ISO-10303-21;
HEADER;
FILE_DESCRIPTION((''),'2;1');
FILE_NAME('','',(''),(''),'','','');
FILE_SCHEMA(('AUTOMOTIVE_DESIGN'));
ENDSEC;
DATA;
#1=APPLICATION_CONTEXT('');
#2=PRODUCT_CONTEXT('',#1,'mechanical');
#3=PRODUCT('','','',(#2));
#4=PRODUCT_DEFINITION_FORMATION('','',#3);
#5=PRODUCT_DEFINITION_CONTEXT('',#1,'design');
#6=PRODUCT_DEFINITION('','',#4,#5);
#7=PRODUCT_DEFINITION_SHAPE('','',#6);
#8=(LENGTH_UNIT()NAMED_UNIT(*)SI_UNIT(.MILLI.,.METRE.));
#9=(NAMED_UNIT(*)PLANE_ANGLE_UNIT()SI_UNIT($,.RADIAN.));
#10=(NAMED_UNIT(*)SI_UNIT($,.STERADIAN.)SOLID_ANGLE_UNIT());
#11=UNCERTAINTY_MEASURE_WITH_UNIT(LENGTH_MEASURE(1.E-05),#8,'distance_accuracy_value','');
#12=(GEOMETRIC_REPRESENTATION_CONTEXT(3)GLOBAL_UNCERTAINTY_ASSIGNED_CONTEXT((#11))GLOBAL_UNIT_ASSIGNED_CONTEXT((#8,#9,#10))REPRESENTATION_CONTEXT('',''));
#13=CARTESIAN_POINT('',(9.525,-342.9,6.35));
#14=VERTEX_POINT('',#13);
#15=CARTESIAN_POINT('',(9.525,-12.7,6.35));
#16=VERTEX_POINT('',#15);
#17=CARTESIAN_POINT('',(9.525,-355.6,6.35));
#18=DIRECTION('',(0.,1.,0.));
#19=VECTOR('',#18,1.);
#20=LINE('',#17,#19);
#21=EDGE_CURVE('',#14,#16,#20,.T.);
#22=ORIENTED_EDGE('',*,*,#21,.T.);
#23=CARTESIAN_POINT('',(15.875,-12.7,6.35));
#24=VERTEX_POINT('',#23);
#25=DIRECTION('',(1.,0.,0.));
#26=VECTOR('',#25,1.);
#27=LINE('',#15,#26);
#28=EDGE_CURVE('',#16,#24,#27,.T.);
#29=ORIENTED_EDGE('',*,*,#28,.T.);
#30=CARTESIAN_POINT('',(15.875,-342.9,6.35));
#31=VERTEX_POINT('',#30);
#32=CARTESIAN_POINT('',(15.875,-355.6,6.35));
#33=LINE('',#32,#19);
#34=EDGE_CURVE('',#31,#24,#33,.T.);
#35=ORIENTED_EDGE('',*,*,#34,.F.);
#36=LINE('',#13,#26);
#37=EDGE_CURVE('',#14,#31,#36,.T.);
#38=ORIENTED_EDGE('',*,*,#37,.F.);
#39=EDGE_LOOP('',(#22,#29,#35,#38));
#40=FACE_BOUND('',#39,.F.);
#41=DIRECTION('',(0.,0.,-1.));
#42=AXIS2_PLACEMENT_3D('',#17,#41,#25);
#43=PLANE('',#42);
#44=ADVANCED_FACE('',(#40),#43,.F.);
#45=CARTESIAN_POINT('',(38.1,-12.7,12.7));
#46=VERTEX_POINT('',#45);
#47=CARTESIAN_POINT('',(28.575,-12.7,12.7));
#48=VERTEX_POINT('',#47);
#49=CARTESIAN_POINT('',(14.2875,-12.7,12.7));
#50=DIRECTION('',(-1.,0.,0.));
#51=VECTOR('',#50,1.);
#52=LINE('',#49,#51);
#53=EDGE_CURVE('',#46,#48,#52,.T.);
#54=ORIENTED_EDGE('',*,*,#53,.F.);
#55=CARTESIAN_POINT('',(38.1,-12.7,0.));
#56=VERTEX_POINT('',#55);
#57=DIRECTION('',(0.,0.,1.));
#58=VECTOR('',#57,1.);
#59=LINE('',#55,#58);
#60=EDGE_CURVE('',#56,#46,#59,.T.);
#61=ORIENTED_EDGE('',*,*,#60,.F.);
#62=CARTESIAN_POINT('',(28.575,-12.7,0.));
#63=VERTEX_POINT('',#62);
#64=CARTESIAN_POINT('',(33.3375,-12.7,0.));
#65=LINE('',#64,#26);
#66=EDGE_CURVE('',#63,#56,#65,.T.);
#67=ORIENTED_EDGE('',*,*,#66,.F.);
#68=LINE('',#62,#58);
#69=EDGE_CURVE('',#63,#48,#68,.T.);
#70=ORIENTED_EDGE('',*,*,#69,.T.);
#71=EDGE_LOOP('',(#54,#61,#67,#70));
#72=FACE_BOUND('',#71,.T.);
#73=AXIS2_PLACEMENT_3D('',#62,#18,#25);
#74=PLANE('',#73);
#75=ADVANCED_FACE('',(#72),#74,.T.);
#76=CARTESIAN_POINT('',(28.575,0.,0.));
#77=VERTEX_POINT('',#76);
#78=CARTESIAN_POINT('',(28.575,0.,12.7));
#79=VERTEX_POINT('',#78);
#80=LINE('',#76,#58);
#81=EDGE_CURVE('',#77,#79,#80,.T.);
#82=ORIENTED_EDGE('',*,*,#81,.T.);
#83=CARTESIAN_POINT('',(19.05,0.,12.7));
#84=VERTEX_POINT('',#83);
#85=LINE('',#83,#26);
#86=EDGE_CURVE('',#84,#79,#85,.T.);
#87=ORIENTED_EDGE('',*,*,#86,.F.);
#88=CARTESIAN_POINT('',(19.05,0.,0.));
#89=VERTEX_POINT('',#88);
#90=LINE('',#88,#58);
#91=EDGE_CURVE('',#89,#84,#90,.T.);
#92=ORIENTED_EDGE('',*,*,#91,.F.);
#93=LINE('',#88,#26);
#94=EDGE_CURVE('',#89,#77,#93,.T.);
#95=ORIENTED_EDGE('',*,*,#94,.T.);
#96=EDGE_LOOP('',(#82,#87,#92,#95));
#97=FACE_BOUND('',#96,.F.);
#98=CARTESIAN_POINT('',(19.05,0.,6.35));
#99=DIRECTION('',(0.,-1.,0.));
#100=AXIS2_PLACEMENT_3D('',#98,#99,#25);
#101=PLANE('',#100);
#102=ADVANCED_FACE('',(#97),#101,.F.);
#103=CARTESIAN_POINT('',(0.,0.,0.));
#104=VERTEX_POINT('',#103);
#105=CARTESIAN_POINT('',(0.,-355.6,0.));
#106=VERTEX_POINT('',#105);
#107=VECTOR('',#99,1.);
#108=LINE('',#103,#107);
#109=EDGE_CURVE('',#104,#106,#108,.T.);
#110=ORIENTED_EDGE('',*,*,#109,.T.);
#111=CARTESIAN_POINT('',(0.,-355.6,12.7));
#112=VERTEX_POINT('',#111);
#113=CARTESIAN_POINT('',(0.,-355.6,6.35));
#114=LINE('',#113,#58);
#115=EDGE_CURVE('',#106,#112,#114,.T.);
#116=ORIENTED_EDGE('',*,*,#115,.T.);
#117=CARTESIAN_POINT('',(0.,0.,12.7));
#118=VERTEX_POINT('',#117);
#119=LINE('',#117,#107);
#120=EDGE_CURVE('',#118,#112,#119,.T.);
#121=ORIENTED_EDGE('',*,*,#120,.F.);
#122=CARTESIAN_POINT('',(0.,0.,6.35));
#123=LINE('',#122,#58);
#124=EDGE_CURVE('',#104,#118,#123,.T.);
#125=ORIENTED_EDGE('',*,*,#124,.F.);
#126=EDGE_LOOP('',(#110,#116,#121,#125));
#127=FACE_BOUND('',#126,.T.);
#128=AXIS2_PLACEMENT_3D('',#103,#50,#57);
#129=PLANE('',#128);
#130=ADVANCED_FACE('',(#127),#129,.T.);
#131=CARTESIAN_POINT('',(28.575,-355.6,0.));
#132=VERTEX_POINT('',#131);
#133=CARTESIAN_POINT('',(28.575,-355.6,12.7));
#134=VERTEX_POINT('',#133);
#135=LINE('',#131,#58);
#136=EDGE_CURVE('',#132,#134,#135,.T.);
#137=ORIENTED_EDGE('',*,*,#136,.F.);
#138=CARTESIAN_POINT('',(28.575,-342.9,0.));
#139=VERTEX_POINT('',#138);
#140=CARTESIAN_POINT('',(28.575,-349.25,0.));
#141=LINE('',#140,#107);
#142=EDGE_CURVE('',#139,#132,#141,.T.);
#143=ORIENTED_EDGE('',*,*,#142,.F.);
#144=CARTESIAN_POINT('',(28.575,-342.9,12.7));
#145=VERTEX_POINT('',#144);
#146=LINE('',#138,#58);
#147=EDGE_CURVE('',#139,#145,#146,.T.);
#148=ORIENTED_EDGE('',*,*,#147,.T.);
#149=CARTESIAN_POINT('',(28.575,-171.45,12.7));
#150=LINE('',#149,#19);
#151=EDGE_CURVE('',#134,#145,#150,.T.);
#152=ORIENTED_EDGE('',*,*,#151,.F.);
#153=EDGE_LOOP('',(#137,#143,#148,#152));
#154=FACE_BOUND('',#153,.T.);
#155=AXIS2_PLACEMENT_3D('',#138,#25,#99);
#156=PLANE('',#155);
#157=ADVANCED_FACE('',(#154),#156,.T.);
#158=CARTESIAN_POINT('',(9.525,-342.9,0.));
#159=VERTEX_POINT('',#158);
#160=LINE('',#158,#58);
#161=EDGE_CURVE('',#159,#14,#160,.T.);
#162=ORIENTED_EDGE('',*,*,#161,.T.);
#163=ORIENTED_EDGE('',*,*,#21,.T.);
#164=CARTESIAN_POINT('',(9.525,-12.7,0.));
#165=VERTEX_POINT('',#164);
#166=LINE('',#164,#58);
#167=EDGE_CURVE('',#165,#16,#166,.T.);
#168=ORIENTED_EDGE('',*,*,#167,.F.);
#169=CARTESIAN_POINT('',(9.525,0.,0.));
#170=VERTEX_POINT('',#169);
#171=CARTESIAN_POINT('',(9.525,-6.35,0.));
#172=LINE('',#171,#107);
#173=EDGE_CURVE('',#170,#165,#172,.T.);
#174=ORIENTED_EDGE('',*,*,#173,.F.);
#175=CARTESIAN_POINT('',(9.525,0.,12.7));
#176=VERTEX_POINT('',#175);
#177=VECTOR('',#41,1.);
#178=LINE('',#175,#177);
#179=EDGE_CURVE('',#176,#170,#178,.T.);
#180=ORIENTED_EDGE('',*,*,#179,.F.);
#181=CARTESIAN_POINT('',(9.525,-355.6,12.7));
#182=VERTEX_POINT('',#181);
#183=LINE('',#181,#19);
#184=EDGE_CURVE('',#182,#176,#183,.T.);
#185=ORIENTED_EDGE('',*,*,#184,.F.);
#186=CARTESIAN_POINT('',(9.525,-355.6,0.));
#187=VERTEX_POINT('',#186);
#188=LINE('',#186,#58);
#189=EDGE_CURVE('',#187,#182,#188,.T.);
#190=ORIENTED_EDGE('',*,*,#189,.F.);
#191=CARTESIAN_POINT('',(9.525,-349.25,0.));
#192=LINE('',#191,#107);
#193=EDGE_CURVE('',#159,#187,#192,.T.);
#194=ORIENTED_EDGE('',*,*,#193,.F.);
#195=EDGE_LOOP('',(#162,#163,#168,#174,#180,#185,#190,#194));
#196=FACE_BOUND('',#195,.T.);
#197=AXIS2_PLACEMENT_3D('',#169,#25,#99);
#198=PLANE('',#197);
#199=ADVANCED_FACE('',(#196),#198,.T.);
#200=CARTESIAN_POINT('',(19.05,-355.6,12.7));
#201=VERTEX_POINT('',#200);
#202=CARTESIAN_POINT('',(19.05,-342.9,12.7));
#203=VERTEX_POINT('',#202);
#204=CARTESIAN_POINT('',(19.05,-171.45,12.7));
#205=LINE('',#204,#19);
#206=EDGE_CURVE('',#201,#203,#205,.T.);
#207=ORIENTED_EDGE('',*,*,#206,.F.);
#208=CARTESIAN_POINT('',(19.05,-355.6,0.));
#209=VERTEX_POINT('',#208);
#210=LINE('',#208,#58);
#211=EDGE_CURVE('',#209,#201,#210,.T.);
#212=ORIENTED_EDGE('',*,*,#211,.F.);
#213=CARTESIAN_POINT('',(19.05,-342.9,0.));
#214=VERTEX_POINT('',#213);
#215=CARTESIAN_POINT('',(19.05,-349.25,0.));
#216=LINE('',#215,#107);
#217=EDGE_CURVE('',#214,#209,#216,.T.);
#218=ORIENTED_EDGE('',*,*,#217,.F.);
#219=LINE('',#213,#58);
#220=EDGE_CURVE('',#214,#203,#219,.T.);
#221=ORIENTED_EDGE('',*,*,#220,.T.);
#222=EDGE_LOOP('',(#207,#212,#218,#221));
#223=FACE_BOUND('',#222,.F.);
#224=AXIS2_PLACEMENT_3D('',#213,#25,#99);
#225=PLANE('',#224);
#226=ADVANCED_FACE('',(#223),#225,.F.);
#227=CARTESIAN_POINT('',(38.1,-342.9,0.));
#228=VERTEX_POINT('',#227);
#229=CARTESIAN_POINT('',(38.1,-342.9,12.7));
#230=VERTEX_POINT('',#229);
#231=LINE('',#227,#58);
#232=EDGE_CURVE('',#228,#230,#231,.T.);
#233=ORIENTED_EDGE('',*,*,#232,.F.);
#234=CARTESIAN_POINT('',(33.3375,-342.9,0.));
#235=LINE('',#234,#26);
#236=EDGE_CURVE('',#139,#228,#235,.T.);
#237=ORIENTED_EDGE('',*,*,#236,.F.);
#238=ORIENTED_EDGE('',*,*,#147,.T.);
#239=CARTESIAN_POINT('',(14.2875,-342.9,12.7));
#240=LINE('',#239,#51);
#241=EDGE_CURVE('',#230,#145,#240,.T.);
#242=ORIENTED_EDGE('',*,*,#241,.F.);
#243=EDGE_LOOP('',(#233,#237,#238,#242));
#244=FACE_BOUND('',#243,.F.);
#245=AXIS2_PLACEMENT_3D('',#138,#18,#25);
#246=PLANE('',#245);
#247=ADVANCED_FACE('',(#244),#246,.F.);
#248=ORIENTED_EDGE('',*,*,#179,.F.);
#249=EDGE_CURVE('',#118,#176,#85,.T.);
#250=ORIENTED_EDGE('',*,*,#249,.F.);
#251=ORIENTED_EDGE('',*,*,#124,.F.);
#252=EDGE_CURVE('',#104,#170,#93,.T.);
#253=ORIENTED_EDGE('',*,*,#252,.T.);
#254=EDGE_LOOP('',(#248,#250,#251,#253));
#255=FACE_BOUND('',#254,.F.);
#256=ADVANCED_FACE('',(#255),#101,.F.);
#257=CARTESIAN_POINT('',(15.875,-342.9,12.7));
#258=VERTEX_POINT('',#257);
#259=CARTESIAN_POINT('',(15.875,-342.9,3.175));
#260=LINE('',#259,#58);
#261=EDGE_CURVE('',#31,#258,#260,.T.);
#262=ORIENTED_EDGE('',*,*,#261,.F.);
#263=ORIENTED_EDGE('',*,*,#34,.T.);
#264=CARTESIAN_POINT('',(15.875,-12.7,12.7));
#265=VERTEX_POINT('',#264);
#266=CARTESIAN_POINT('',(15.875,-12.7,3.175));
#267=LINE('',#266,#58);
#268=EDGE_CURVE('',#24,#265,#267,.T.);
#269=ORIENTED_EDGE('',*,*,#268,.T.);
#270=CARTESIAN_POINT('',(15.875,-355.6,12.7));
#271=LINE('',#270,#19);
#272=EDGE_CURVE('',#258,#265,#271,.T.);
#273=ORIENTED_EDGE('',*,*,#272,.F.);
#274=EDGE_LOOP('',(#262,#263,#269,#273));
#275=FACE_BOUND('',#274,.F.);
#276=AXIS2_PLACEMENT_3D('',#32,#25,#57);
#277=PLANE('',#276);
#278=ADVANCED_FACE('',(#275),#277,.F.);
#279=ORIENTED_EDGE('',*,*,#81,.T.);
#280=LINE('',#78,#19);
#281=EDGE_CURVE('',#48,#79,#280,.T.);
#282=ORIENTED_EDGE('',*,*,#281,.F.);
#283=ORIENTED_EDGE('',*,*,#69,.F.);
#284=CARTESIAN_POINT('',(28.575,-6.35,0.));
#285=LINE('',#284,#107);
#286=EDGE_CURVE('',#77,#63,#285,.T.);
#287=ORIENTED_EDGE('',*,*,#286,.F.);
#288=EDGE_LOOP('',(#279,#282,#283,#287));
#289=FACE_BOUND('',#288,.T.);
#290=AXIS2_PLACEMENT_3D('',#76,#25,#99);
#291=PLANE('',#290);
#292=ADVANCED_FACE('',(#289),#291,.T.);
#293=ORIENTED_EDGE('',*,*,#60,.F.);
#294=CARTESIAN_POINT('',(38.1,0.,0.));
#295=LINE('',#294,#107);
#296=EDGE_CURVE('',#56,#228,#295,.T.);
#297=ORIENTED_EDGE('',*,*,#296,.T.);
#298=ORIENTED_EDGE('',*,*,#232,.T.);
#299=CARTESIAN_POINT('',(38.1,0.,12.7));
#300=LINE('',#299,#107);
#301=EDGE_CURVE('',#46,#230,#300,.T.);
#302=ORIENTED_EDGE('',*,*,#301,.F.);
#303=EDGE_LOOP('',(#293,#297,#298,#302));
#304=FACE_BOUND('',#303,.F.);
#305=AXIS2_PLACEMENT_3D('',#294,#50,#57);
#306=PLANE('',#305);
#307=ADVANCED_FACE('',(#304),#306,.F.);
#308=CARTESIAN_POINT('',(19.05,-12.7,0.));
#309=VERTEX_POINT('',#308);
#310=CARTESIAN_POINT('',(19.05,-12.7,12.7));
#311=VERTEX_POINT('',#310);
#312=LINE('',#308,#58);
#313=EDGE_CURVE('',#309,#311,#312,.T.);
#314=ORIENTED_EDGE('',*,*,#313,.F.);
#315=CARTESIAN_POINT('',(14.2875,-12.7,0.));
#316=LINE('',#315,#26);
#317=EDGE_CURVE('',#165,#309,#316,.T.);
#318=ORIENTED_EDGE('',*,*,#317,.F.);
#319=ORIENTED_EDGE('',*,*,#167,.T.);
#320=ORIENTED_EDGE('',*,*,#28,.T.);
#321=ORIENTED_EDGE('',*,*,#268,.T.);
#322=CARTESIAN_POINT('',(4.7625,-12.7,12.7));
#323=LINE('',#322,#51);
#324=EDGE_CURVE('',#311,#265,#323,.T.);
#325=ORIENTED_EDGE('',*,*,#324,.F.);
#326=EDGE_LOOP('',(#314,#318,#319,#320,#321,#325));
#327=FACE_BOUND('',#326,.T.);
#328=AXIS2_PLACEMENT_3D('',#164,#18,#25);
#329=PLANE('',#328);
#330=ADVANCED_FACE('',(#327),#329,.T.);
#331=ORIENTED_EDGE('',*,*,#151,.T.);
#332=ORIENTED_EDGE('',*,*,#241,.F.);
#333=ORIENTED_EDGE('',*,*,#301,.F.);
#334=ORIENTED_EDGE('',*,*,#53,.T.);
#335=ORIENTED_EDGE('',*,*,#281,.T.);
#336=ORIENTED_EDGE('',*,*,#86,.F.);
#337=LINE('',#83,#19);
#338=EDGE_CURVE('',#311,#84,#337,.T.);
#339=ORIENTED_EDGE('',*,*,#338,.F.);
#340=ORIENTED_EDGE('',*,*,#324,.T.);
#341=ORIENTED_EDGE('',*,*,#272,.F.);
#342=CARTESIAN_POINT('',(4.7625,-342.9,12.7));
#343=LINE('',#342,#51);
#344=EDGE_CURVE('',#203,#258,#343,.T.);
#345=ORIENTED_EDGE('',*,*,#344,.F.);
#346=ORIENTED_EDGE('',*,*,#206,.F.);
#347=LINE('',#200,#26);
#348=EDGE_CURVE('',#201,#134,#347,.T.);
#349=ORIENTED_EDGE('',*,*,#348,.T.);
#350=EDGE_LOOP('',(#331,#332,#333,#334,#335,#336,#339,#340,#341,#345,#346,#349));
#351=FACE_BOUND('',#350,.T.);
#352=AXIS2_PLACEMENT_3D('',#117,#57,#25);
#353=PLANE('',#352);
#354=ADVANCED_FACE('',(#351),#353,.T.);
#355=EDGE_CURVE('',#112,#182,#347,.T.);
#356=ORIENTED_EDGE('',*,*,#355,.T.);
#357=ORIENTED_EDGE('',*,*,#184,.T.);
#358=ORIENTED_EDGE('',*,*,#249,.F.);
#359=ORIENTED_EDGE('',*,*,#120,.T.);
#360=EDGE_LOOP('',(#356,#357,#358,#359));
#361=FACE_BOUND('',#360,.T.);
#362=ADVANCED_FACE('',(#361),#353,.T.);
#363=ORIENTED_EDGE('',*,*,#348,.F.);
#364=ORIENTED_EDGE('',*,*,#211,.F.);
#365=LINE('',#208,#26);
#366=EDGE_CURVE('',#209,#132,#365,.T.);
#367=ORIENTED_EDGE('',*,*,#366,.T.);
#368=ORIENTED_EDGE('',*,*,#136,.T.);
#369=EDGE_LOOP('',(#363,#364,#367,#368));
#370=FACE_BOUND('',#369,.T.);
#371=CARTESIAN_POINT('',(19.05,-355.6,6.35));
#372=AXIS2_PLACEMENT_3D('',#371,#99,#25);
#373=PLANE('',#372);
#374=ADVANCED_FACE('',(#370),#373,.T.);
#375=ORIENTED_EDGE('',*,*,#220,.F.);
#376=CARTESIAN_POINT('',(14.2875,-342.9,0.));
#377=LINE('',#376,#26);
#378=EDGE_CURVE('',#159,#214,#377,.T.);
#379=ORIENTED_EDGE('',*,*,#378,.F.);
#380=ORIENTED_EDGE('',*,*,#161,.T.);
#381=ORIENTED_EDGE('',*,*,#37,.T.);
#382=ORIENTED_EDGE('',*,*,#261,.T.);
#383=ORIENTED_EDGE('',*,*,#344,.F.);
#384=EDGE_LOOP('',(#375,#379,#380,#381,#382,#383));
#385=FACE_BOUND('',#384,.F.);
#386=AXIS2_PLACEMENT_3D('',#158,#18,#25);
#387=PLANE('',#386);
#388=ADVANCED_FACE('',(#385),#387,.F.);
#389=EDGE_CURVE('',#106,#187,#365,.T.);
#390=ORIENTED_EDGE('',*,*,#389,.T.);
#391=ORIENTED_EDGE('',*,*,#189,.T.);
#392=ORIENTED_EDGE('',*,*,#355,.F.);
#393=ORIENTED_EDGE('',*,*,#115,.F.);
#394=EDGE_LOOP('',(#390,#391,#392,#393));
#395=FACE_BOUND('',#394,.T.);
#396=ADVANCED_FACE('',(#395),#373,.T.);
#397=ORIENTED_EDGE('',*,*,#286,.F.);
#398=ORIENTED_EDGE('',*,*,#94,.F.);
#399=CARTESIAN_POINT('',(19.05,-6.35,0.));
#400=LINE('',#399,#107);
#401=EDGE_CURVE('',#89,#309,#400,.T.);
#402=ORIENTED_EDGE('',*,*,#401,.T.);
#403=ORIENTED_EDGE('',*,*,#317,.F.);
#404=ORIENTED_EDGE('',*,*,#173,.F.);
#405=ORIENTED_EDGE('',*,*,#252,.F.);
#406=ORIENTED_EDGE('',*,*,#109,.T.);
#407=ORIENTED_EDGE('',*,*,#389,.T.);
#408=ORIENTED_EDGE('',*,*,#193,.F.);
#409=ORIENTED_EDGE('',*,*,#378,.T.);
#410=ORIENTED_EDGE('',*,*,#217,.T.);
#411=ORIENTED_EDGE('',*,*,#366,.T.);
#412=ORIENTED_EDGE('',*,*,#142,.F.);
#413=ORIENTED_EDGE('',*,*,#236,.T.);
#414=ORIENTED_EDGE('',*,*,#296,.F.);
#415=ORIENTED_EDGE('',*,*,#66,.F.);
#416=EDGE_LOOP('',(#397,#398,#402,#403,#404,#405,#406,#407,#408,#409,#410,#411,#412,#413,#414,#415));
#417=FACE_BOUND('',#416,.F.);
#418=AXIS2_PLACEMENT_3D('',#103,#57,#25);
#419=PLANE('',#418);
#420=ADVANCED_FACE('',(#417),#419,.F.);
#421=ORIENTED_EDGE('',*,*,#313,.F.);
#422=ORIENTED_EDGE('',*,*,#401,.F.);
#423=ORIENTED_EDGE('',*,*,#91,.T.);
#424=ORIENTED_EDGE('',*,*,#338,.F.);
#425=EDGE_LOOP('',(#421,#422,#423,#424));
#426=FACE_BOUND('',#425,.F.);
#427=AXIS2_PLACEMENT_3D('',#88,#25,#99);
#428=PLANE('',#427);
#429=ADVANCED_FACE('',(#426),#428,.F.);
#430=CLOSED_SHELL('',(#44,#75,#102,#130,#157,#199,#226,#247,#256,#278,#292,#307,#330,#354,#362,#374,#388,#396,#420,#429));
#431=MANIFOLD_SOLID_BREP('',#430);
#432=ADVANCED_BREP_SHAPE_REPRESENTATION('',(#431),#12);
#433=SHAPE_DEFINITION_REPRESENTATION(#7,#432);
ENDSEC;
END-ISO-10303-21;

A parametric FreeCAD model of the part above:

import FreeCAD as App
import Part
import Sketcher

V = App.Vector
Q = App.Units.Quantity


def add_polygon(sketch, points):
    """Adds a closed chain of lines whose ends are joined by coincident constraints."""
    first, n = sketch.GeometryCount, len(points)
    for a, b in zip(points, points[1:] + points[:1]):
        sketch.addGeometry(Part.LineSegment(App.Vector(*a, 0), App.Vector(*b, 0)), False)
    for i in range(n):
        sketch.addConstraint(Sketcher.Constraint("Coincident", first + i, 2, first + (i + 1) % n, 1))

doc = App.newDocument("Part")
body = doc.addObject("PartDesign::Body", "Body")

# Sketch on XZ plane
sketch1 = body.newObject("Sketcher::SketchObject", "Sketch")
sketch1.AttachmentSupport = (doc.getObject("XZ_Plane"), [""])
sketch1.MapMode = "FlatFace"
add_polygon(sketch1, [(0, 13), (0, 0), (38, 0), (38, 13)])  # lines 0-3
sketch1.addConstraint([
    Sketcher.Constraint("Vertical", 0),
    Sketcher.Constraint("Horizontal", 1),
    Sketcher.Constraint("Vertical", 2),
    Sketcher.Constraint("Horizontal", 3),
    Sketcher.Constraint("Coincident", 0, 2, -1, 1),
    Sketcher.Constraint("DistanceX", 1, 1, 1, 2, Q("1.5 in")),
    Sketcher.Constraint("DistanceY", 0, 2, 0, 1, Q("0.5 in")),
])
pad1 = body.newObject("PartDesign::Pad", "Pad")
pad1.Profile = sketch1
pad1.Length = Q("14 in")

# Sketch on XZ plane
sketch2 = body.newObject("Sketcher::SketchObject", "Sketch001")
sketch2.AttachmentSupport = (doc.getObject("XZ_Plane"), [""])
sketch2.MapMode = "FlatFace"
sketch2.AttachmentOffset = App.Placement(V(0, 0, 14 * 25.4), App.Rotation())
add_polygon(sketch2, [(10, 13), (10, 6), (16, 6), (16, 13)])  # lines 0-3
sketch2.addConstraint([
    Sketcher.Constraint("Vertical", 0),
    Sketcher.Constraint("Horizontal", 1),
    Sketcher.Constraint("Vertical", 2),
    Sketcher.Constraint("Horizontal", 3),
    Sketcher.Constraint("Equal", 3, 0),
    Sketcher.Constraint("DistanceX", 1, 1, 1, 2, Q("0.25 in")),
    Sketcher.Constraint("DistanceY", -1, 1, 2, 2, Q("0.5 in")),
    Sketcher.Constraint("DistanceX", -1, 1, 0, 2, Q("0.375 in")),
])
pocket1 = body.newObject("PartDesign::Pocket", "Pocket")
pocket1.Profile = sketch2
pocket1.Type = "ThroughAll"

# Sketch on XY plane
sketch3 = body.newObject("Sketcher::SketchObject", "Sketch002")
sketch3.AttachmentSupport = (doc.getObject("XY_Plane"), [""])
sketch3.MapMode = "FlatFace"
add_polygon(sketch3, [(29, -356), (29, -343), (38, -343), (38, -356)])  # lines 0-3
add_polygon(sketch3, [(10, -356), (10, -343), (19, -343), (19, -356)])  # lines 4-7
add_polygon(sketch3, [(29, -13), (29, 0), (38, 0), (38, -13)])  # lines 8-11
add_polygon(sketch3, [(10, -13), (10, 0), (19, 0), (19, -13)])  # lines 12-15
sketch3.addConstraint([
    Sketcher.Constraint("Vertical", 0),
    Sketcher.Constraint("Horizontal", 1),
    Sketcher.Constraint("Vertical", 2),
    Sketcher.Constraint("Horizontal", 3),
    Sketcher.Constraint("Vertical", 4),
    Sketcher.Constraint("Horizontal", 5),
    Sketcher.Constraint("Vertical", 6),
    Sketcher.Constraint("Horizontal", 7),
    Sketcher.Constraint("Vertical", 8),
    Sketcher.Constraint("Horizontal", 9),
    Sketcher.Constraint("Vertical", 10),
    Sketcher.Constraint("Horizontal", 11),
    Sketcher.Constraint("Vertical", 12),
    Sketcher.Constraint("Horizontal", 13),
    Sketcher.Constraint("Vertical", 14),
    Sketcher.Constraint("Horizontal", 15),
    Sketcher.Constraint("PointOnObject", 8, 2, -1),
    Sketcher.Constraint("PointOnObject", 12, 2, -1),
    Sketcher.Constraint("Horizontal", 1, 2, 4, 2),
    Sketcher.Constraint("Horizontal", 3, 2, 6, 2),
    Sketcher.Constraint("Horizontal", 11, 2, 14, 2),
    Sketcher.Constraint("Vertical", 3, 2, 8, 2),
    Sketcher.Constraint("Vertical", 2, 2, 9, 2),
    Sketcher.Constraint("Vertical", 7, 2, 12, 2),
    Sketcher.Constraint("Vertical", 6, 2, 13, 2),
    Sketcher.Constraint("Equal", 3, 5),
    Sketcher.Constraint("Equal", 6, 8),
    Sketcher.Constraint("DistanceY", 0, 1, 0, 2, Q("0.5 in")),
    Sketcher.Constraint("DistanceY", 2, 2, -1, 1, Q("14 in")),
    Sketcher.Constraint("DistanceX", -1, 1, 1, 2, Q("1.5 in")),
    Sketcher.Constraint("DistanceX", 1, 1, 1, 2, Q("0.375 in")),
    Sketcher.Constraint("DistanceX", -1, 1, 5, 2, Q("0.75 in")),
])
pocket2 = body.newObject("PartDesign::Pocket", "Pocket001")
pocket2.Profile = sketch3
pocket2.Type = "ThroughAll"
pocket2.Reversed = True

doc.recompute()
